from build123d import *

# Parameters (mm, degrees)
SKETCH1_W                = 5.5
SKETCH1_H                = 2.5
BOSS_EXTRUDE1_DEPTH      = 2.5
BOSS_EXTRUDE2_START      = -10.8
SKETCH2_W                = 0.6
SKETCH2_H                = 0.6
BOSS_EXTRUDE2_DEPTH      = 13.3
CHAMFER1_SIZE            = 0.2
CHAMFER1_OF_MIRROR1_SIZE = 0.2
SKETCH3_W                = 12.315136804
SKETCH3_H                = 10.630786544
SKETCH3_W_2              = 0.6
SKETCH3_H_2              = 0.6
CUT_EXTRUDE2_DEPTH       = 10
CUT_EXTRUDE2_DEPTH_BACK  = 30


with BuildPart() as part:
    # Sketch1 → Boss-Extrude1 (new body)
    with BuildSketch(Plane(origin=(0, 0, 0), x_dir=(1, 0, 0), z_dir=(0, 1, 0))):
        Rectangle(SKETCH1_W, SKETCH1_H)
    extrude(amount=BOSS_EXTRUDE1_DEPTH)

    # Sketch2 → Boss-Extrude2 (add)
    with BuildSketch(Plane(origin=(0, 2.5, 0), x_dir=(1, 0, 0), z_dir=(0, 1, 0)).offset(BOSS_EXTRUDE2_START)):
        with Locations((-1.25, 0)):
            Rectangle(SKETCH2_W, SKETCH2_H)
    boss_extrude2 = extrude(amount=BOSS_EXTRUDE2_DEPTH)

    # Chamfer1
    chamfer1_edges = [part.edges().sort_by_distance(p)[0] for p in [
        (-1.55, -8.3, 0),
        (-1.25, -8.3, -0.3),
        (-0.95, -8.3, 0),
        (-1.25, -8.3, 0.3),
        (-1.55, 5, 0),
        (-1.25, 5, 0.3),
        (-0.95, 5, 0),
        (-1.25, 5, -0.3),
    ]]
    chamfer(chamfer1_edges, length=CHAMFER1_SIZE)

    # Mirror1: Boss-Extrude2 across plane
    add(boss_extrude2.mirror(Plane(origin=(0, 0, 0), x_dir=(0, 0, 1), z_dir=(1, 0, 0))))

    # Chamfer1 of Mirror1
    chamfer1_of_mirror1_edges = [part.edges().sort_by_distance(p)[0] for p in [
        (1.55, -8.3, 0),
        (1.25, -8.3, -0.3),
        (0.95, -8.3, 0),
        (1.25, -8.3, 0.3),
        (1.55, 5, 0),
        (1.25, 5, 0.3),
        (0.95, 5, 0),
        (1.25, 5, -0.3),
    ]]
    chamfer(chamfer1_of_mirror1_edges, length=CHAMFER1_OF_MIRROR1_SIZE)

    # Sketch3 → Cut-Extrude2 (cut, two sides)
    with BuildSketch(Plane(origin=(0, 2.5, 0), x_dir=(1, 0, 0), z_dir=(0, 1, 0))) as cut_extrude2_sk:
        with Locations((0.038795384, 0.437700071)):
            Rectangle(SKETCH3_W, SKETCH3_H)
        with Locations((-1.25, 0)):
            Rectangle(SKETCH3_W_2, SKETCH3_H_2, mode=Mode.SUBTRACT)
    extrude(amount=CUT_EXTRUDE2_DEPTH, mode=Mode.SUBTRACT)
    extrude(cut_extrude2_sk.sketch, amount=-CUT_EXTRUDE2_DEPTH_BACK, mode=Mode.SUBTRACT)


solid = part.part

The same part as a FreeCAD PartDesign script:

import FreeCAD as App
import Part
import Sketcher


def edges_at(feature, points):
    """Names of the edges that pass closest to the given points."""
    edges = feature.Shape.Edges
    near = lambda p: min(range(len(edges)), key=lambda i: edges[i].distToShape(Part.Vertex(*p))[0])
    return sorted({f"Edge{near(p) + 1}" for p in points})

doc = App.newDocument("Part")
body = doc.addObject("PartDesign::Body", "Body")

# Sketch on XZ plane
sketch1 = doc.addObject("Sketcher::SketchObject", "Sketch")
body.addObject(sketch1)
sketch1.AttachmentSupport = (doc.XZ_Plane, [""])
sketch1.MapMode = "FlatFace"
sketch1.addGeometry([
    Part.LineSegment(App.Vector(-2.8, -1.2, 0), App.Vector(-2.8, 1.2, 0)),
    Part.LineSegment(App.Vector(-2.8, 1.2, 0), App.Vector(2.8, 1.2, 0)),
    Part.LineSegment(App.Vector(2.8, 1.2, 0), App.Vector(2.8, -1.2, 0)),
    Part.LineSegment(App.Vector(2.8, -1.2, 0), App.Vector(-2.8, -1.2, 0)),
], False)
sketch1.addConstraint([
    Sketcher.Constraint("Coincident", 0, 2, 1, 1),
    Sketcher.Constraint("Coincident", 1, 2, 2, 1),
    Sketcher.Constraint("Coincident", 2, 2, 3, 1),
    Sketcher.Constraint("Coincident", 3, 2, 0, 1),
    Sketcher.Constraint("Vertical", 0),
    Sketcher.Constraint("Horizontal", 1),
    Sketcher.Constraint("Vertical", 2),
    Sketcher.Constraint("Horizontal", 3),
    Sketcher.Constraint("Symmetric", 0, 2, 2, 2, -1, 1),
    Sketcher.Constraint("DistanceX", 1, 1, 1, 2, 5.5),
    Sketcher.Constraint("DistanceY", 0, 1, 0, 2, 2.5),
])
pad1 = doc.addObject("PartDesign::Pad", "Pad")
body.addObject(pad1)
pad1.Profile = sketch1
pad1.Length = 2.5
pad1.Reversed = True

# Sketch on XZ plane
sketch2 = doc.addObject("Sketcher::SketchObject", "Sketch001")
body.addObject(sketch2)
sketch2.AttachmentSupport = (doc.XZ_Plane, [""])
sketch2.MapMode = "FlatFace"
sketch2.AttachmentOffset = App.Placement(App.Vector(0, 0, 8.3), App.Rotation())
sketch2.addGeometry([
    Part.LineSegment(App.Vector(-1.6, -0.3, 0), App.Vector(-1.6, 0.3, 0)),
    Part.LineSegment(App.Vector(-1.6, 0.3, 0), App.Vector(-0.9, 0.3, 0)),
    Part.LineSegment(App.Vector(-0.9, 0.3, 0), App.Vector(-0.9, -0.3, 0)),
    Part.LineSegment(App.Vector(-0.9, -0.3, 0), App.Vector(-1.6, -0.3, 0)),
], False)
sketch2.addConstraint([
    Sketcher.Constraint("Coincident", 0, 2, 1, 1),
    Sketcher.Constraint("Coincident", 1, 2, 2, 1),
    Sketcher.Constraint("Coincident", 2, 2, 3, 1),
    Sketcher.Constraint("Coincident", 3, 2, 0, 1),
    Sketcher.Constraint("Vertical", 0),
    Sketcher.Constraint("Horizontal", 1),
    Sketcher.Constraint("Vertical", 2),
    Sketcher.Constraint("Horizontal", 3),
    Sketcher.Constraint("Equal", 3, 0),
    Sketcher.Constraint("DistanceX", 1, 1, 1, 2, 0.6),
    Sketcher.Constraint("DistanceY", -1, 1, 0, 2, 0.3),
    Sketcher.Constraint("DistanceX", 0, 2, -1, 1, 1.55),
])
pad2 = doc.addObject("PartDesign::Pad", "Pad001")
body.addObject(pad2)
pad2.Profile = sketch2
pad2.Length = 13.3
pad2.Reversed = True
doc.recompute()

chamfer = doc.addObject("PartDesign::Chamfer", "Chamfer")
body.addObject(chamfer)
chamfer.Base = (pad2, edges_at(pad2, [
    (-1.55, -8.3, 0),
    (-1.25, -8.3, -0.3),
    (-0.95, -8.3, 0),
    (-1.25, -8.3, 0.3),
    (-1.55, 5, 0),
    (-1.25, 5, 0.3),
    (-0.95, 5, 0),
    (-1.25, 5, -0.3),
]))
chamfer.Size = 0.2
doc.recompute()

mirrored = doc.addObject("PartDesign::Mirrored", "Mirrored")
body.addObject(mirrored)
mirrored.Originals = [pad2]
mirrored.MirrorPlane = (doc.YZ_Plane, [""])
body.Tip = mirrored
doc.recompute()

chamfer2 = doc.addObject("PartDesign::Chamfer", "Chamfer001")
body.addObject(chamfer2)
chamfer2.Base = (mirrored, edges_at(mirrored, [
    (1.55, -8.3, 0),
    (1.25, -8.3, -0.3),
    (0.95, -8.3, 0),
    (1.25, -8.3, 0.3),
    (1.55, 5, 0),
    (1.25, 5, 0.3),
    (0.95, 5, 0),
    (1.25, 5, -0.3),
]))
chamfer2.Size = 0.2

# Sketch on XZ plane
sketch3 = doc.addObject("Sketcher::SketchObject", "Sketch002")
body.addObject(sketch3)
sketch3.AttachmentSupport = (doc.XZ_Plane, [""])
sketch3.MapMode = "FlatFace"
sketch3.AttachmentOffset = App.Placement(App.Vector(0, 0, -2.5), App.Rotation())
sketch3.addGeometry([
    Part.LineSegment(App.Vector(-6.1, -5.8, 0), App.Vector(-6.1, 4.9, 0)),  # 0
    Part.LineSegment(App.Vector(-6.1, 4.9, 0), App.Vector(6.2, 4.9, 0)),  # 1
    Part.LineSegment(App.Vector(6.2, 4.9, 0), App.Vector(6.2, -5.8, 0)),  # 2
    Part.LineSegment(App.Vector(6.2, -5.8, 0), App.Vector(-6.1, -5.8, 0)),  # 3
    Part.LineSegment(App.Vector(-0.9, 0.3, 0), App.Vector(-1.6, 0.3, 0)),  # 4
    Part.LineSegment(App.Vector(-1.6, 0.3, 0), App.Vector(-1.6, -0.3, 0)),  # 5
    Part.LineSegment(App.Vector(-1.6, -0.3, 0), App.Vector(-0.9, -0.3, 0)),  # 6
    Part.LineSegment(App.Vector(-0.9, -0.3, 0), App.Vector(-0.9, 0.3, 0)),  # 7
], False)
sketch3.addConstraint([
    Sketcher.Constraint("Coincident", 0, 2, 1, 1),
    Sketcher.Constraint("Coincident", 1, 2, 2, 1),
    Sketcher.Constraint("Coincident", 2, 2, 3, 1),
    Sketcher.Constraint("Coincident", 3, 2, 0, 1),
    Sketcher.Constraint("Coincident", 4, 2, 5, 1),
    Sketcher.Constraint("Coincident", 5, 2, 6, 1),
    Sketcher.Constraint("Coincident", 6, 2, 7, 1),
    Sketcher.Constraint("Coincident", 7, 2, 4, 1),
    Sketcher.Constraint("Vertical", 0),
    Sketcher.Constraint("Horizontal", 1),
    Sketcher.Constraint("Vertical", 2),
    Sketcher.Constraint("Horizontal", 3),
    Sketcher.Constraint("Horizontal", 4),
    Sketcher.Constraint("Vertical", 5),
    Sketcher.Constraint("Horizontal", 6),
    Sketcher.Constraint("Vertical", 7),
    Sketcher.Constraint("Equal", 6, 5),
    Sketcher.Constraint("DistanceX", 4, 2, 4, 1, 0.6),
    Sketcher.Constraint("DistanceY", -1, 1, 4, 2, 0.3),
    Sketcher.Constraint("DistanceX", 4, 2, -1, 1, 1.55),
    Sketcher.Constraint("DistanceX", 1, 1, 1, 2, 12.315137),
    Sketcher.Constraint("DistanceY", 0, 1, 0, 2, 10.630787),
    Sketcher.Constraint("DistanceX", 0, 2, -1, 1, 6.118773),
    Sketcher.Constraint("DistanceY", -1, 1, 0, 2, 4.877693),
])
pocket1 = doc.addObject("PartDesign::Pocket", "Pocket")
body.addObject(pocket1)
pocket1.Profile = sketch3
pocket1.Type = "ThroughAll"
pocket1.Midplane = True

doc.recompute()
